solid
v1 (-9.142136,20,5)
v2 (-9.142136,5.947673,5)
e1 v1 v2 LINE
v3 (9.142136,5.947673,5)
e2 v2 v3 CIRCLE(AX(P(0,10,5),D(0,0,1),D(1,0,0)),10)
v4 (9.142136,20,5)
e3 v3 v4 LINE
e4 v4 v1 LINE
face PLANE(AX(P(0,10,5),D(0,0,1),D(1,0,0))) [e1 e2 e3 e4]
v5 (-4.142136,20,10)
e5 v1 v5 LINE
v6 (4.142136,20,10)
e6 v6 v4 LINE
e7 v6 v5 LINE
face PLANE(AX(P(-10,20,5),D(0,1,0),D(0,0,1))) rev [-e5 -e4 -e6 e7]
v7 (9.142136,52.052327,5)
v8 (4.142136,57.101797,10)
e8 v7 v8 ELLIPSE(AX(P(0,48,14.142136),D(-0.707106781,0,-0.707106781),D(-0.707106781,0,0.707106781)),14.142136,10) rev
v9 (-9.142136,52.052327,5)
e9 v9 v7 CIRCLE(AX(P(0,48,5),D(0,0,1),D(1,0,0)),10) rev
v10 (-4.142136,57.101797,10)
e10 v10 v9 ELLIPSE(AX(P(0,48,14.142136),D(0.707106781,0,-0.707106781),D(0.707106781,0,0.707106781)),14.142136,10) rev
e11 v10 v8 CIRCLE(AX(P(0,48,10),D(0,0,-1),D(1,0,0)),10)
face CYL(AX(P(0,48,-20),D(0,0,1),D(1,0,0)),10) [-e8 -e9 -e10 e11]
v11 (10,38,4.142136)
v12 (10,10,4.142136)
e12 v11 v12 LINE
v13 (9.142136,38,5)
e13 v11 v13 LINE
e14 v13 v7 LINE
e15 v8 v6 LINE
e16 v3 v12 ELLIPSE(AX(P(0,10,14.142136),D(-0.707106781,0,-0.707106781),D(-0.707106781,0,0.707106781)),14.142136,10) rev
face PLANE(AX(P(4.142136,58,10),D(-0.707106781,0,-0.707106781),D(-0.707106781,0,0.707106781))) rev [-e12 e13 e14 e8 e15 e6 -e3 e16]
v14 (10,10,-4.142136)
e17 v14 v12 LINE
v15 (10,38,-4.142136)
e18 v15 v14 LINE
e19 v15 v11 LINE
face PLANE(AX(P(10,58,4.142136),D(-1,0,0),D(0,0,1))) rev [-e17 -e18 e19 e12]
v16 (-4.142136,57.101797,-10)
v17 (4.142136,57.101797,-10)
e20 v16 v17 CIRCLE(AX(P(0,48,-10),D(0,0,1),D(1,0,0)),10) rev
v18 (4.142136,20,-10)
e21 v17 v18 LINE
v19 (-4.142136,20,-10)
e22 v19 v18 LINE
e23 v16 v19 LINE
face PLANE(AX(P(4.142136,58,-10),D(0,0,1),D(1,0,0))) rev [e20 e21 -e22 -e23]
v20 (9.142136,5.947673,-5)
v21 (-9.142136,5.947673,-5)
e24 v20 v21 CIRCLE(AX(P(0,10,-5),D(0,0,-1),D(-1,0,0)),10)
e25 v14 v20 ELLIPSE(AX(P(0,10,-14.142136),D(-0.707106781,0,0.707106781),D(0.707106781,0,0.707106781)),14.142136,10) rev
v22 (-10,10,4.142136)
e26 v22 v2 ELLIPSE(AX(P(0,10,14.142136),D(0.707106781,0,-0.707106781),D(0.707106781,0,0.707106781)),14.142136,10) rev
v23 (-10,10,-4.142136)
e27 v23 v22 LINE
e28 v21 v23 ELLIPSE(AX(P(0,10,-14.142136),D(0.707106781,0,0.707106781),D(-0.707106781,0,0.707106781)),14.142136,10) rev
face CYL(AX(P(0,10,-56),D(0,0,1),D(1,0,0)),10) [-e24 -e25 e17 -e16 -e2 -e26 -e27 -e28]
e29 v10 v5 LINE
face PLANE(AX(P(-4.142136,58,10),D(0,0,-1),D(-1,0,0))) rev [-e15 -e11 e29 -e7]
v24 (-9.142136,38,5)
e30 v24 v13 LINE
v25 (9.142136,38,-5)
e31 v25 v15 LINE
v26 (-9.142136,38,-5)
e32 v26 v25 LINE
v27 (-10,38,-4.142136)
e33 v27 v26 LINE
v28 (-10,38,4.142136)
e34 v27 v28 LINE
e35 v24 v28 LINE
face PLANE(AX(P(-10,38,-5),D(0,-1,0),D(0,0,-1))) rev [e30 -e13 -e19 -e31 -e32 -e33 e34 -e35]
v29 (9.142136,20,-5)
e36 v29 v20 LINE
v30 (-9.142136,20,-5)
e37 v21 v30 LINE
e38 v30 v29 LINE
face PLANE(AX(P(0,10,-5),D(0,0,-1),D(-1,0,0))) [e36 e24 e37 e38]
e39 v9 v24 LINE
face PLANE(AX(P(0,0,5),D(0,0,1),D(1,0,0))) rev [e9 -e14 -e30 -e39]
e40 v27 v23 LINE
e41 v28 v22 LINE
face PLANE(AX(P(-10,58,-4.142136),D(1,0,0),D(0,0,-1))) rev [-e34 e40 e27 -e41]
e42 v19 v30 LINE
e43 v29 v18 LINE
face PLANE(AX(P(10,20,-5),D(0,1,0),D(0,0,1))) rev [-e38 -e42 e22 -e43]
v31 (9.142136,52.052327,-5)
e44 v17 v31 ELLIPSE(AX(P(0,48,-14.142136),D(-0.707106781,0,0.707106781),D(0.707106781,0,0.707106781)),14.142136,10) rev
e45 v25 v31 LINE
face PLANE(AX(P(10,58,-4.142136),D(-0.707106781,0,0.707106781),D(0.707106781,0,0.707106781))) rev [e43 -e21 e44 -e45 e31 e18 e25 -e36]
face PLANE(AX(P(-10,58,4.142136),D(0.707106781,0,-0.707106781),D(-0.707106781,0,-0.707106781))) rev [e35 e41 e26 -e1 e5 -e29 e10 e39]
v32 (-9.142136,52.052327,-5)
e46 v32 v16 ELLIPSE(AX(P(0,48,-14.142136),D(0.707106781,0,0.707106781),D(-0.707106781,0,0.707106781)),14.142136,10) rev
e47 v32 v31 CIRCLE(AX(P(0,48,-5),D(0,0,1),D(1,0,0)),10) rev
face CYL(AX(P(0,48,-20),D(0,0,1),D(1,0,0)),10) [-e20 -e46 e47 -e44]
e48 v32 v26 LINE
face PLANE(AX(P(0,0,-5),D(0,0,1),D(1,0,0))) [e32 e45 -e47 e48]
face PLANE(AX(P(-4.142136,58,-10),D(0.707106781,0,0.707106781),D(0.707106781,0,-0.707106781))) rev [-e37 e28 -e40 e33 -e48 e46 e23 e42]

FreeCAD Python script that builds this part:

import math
import FreeCAD as App
import Part
import Sketcher

V = App.Vector


def add_polygon(sketch, points):
    """Adds a closed chain of lines whose ends are joined by coincident constraints."""
    first, n = sketch.GeometryCount, len(points)
    for a, b in zip(points, points[1:] + points[:1]):
        sketch.addGeometry(Part.LineSegment(App.Vector(*a, 0), App.Vector(*b, 0)), False)
    for i in range(n):
        sketch.addConstraint(Sketcher.Constraint("Coincident", first + i, 2, first + (i + 1) % n, 1))

doc = App.newDocument("Part")
body = doc.addObject("PartDesign::Body", "Body")

# Sketch on XZ plane
sketch1 = body.newObject("Sketcher::SketchObject", "Sketch")
sketch1.AttachmentSupport = (doc.getObject("XZ_Plane"), [""])
sketch1.MapMode = "FlatFace"
add_polygon(sketch1, [(10, -4), (4, -10), (-4, -10), (-10, -4), (-10, 4), (-4, 10), (4, 10), (10, 4)])  # lines 0-7
sketch1.addConstraint([
    Sketcher.Constraint("Horizontal", 1),
    Sketcher.Constraint("Vertical", 3),
    Sketcher.Constraint("Horizontal", 5),
    Sketcher.Constraint("Vertical", 7),
    Sketcher.Constraint("Symmetric", 0, 2, 4, 2, -1, 1),
    Sketcher.Constraint("Symmetric", 2, 2, 6, 2, -1, 1),
    Sketcher.Constraint("Perpendicular", 0, 2),
    Sketcher.Constraint("Perpendicular", 2, 4),
    Sketcher.Constraint("Perpendicular", 4, 6),
    Sketcher.Constraint("Horizontal", 3, 2, 6, 2),
    Sketcher.Constraint("Vertical", 1, 2, 4, 2),
    Sketcher.Constraint("Equal", 5, 3),
    Sketcher.Constraint("DistanceY", 0, 2, -1, 1, 10.0),
    Sketcher.Constraint("DistanceX", 1, 2, 1, 1, 8.284271),
])
pad1 = body.newObject("PartDesign::Pad", "Pad")
pad1.Profile = sketch1
pad1.Length = 58
pad1.Reversed = True

# Sketch on XY plane
sketch2 = body.newObject("Sketcher::SketchObject", "Sketch001")
sketch2.AttachmentSupport = (doc.getObject("XY_Plane"), [""])
sketch2.MapMode = "FlatFace"
sketch2.AttachmentOffset = App.Placement(V(0, 0, 10), App.Rotation())
sketch2.addGeometry([
    Part.LineSegment(V(-10, 10, 0), V(-10, -2, 0)),
    Part.LineSegment(V(-10, -2, 0), V(10, -2, 0)),
    Part.LineSegment(V(10, -2, 0), V(10, 10, 0)),
    Part.ArcOfCircle(Part.Circle(V(0, 10, 0), V(0, 0, 1), 10), math.radians(180), math.radians(360)),
], False)
sketch2.addConstraint([
    Sketcher.Constraint("Coincident", 0, 2, 1, 1),
    Sketcher.Constraint("Coincident", 1, 2, 2, 1),
    Sketcher.Constraint("Tangent", 2, 2, 3, 2),
    Sketcher.Constraint("Tangent", 3, 1, 0, 1),
    Sketcher.Constraint("Vertical", 0),
    Sketcher.Constraint("Horizontal", 1),
    Sketcher.Constraint("Vertical", 2),
    Sketcher.Constraint("PointOnObject", 3, 3, -2),
    Sketcher.Constraint("Radius", 3, 10.0),
    Sketcher.Constraint("DistanceY", -1, 1, 3, 3, 10.0),
    Sketcher.Constraint("DistanceY", 0, 2, 0, 1, 12.389296),
])
pocket1 = body.newObject("PartDesign::Pocket", "Pocket")
pocket1.Profile = sketch2
pocket1.Length = 66

# Sketch on XY plane
sketch3 = body.newObject("Sketcher::SketchObject", "Sketch002")
sketch3.AttachmentSupport = (doc.getObject("XY_Plane"), [""])
sketch3.MapMode = "FlatFace"
sketch3.AttachmentOffset = App.Placement(V(0, 0, 10), App.Rotation())
sketch3.addGeometry([
    Part.LineSegment(V(-10, 20, 0), V(-10, 10, 0)),
    Part.ArcOfCircle(Part.Circle(V(0, 10, 0), V(0, 0, 1), 10), math.radians(180), math.radians(360)),
    Part.LineSegment(V(10, 10, 0), V(10, 20, 0)),
    Part.LineSegment(V(10, 20, 0), V(-10, 20, 0)),
], False)
sketch3.addConstraint([
    Sketcher.Constraint("Tangent", 0, 2, 1, 1),
    Sketcher.Constraint("Tangent", 1, 2, 2, 1),
    Sketcher.Constraint("Coincident", 2, 2, 3, 1),
    Sketcher.Constraint("Coincident", 3, 2, 0, 1),
    Sketcher.Constraint("Vertical", 0),
    Sketcher.Constraint("Vertical", 2),
    Sketcher.Constraint("Horizontal", 3),
    Sketcher.Constraint("PointOnObject", 1, 3, -2),
    Sketcher.Constraint("Radius", 1, 10.0),
    Sketcher.Constraint("DistanceY", 0, 2, 0, 1, 10.0),
    Sketcher.Constraint("DistanceY", -1, 1, 1, 3, 10.0),
])
pocket2 = body.newObject("PartDesign::Pocket", "Pocket001")
pocket2.Profile = sketch3
pocket2.Length = 5

# Sketch on XY plane
sketch4 = body.newObject("Sketcher::SketchObject", "Sketch003")
sketch4.AttachmentSupport = (doc.getObject("XY_Plane"), [""])
sketch4.MapMode = "FlatFace"
sketch4.AttachmentOffset = App.Placement(V(0, 0, -5), App.Rotation())
sketch4.addGeometry([
    Part.LineSegment(V(10, 20, 0), V(10, 10, 0)),
    Part.ArcOfCircle(Part.Circle(V(0, 10, 0), V(0, 0, 1), 10), math.radians(180), math.radians(360)),
    Part.LineSegment(V(-10, 10, 0), V(-10, 20, 0)),
    Part.LineSegment(V(-10, 20, 0), V(10, 20, 0)),
], False)
sketch4.addConstraint([
    Sketcher.Constraint("Tangent", 0, 2, 1, 2),
    Sketcher.Constraint("Tangent", 1, 1, 2, 1),
    Sketcher.Constraint("Coincident", 2, 2, 3, 1),
    Sketcher.Constraint("Coincident", 3, 2, 0, 1),
    Sketcher.Constraint("Vertical", 0),
    Sketcher.Constraint("Vertical", 2),
    Sketcher.Constraint("Horizontal", 3),
    Sketcher.Constraint("PointOnObject", 1, 3, -2),
    Sketcher.Constraint("Radius", 1, 10.0),
    Sketcher.Constraint("DistanceY", 0, 2, 0, 1, 10.0),
    Sketcher.Constraint("DistanceY", -1, 1, 1, 3, 10.0),
])
pocket3 = body.newObject("PartDesign::Pocket", "Pocket002")
pocket3.Profile = sketch4
pocket3.Length = 5

# Sketch on XY plane
sketch5 = body.newObject("Sketcher::SketchObject", "Sketch004")
sketch5.AttachmentSupport = (doc.getObject("XY_Plane"), [""])
sketch5.MapMode = "FlatFace"
add_polygon(sketch5, [(-10, 58), (-10, 38), (10, 38), (10, 58)])  # lines 0-3
sketch5.addConstraint([
    Sketcher.Constraint("Vertical", 0),
    Sketcher.Constraint("Horizontal", 1),
    Sketcher.Constraint("Vertical", 2),
    Sketcher.Constraint("Horizontal", 3),
    Sketcher.Constraint("Equal", 3, 0),
    Sketcher.Constraint("DistanceX", 1, 1, 1, 2, 20.0),
    Sketcher.Constraint("DistanceX", 0, 2, -1, 1, 10.0),
    Sketcher.Constraint("DistanceY", -1, 1, 0, 2, 38.0),
])
pocket4 = body.newObject("PartDesign::Pocket", "Pocket003")
pocket4.Profile = sketch5
pocket4.Length = 10
pocket4.Midplane = True

# Sketch on XY plane
sketch6 = body.newObject("Sketcher::SketchObject", "Sketch005")
sketch6.AttachmentSupport = (doc.getObject("XY_Plane"), [""])
sketch6.MapMode = "FlatFace"
sketch6.AttachmentOffset = App.Placement(V(0, 0, 10), App.Rotation())
sketch6.addGeometry([
    Part.LineSegment(V(-10, 64, 0), V(-10, 48, 0)),
    Part.ArcOfCircle(Part.Circle(V(0, 48, 0), V(0, 0, 1), 10), math.radians(0), math.radians(180)),
    Part.LineSegment(V(10, 48, 0), V(10, 64, 0)),
    Part.LineSegment(V(10, 64, 0), V(-10, 64, 0)),
], False)
sketch6.addConstraint([
    Sketcher.Constraint("Tangent", 0, 2, 1, 2),
    Sketcher.Constraint("Tangent", 1, 1, 2, 1),
    Sketcher.Constraint("Coincident", 2, 2, 3, 1),
    Sketcher.Constraint("Coincident", 3, 2, 0, 1),
    Sketcher.Constraint("Vertical", 0),
    Sketcher.Constraint("Vertical", 2),
    Sketcher.Constraint("Horizontal", 3),
    Sketcher.Constraint("PointOnObject", 1, 3, -2),
    Sketcher.Constraint("Radius", 1, 10.0),
    Sketcher.Constraint("DistanceY", -1, 1, 1, 3, 48.0),
    Sketcher.Constraint("DistanceY", 0, 2, 0, 1, 15.661192),
])
pocket5 = body.newObject("PartDesign::Pocket", "Pocket004")
pocket5.Profile = sketch6
pocket5.Length = 30

doc.recompute()
